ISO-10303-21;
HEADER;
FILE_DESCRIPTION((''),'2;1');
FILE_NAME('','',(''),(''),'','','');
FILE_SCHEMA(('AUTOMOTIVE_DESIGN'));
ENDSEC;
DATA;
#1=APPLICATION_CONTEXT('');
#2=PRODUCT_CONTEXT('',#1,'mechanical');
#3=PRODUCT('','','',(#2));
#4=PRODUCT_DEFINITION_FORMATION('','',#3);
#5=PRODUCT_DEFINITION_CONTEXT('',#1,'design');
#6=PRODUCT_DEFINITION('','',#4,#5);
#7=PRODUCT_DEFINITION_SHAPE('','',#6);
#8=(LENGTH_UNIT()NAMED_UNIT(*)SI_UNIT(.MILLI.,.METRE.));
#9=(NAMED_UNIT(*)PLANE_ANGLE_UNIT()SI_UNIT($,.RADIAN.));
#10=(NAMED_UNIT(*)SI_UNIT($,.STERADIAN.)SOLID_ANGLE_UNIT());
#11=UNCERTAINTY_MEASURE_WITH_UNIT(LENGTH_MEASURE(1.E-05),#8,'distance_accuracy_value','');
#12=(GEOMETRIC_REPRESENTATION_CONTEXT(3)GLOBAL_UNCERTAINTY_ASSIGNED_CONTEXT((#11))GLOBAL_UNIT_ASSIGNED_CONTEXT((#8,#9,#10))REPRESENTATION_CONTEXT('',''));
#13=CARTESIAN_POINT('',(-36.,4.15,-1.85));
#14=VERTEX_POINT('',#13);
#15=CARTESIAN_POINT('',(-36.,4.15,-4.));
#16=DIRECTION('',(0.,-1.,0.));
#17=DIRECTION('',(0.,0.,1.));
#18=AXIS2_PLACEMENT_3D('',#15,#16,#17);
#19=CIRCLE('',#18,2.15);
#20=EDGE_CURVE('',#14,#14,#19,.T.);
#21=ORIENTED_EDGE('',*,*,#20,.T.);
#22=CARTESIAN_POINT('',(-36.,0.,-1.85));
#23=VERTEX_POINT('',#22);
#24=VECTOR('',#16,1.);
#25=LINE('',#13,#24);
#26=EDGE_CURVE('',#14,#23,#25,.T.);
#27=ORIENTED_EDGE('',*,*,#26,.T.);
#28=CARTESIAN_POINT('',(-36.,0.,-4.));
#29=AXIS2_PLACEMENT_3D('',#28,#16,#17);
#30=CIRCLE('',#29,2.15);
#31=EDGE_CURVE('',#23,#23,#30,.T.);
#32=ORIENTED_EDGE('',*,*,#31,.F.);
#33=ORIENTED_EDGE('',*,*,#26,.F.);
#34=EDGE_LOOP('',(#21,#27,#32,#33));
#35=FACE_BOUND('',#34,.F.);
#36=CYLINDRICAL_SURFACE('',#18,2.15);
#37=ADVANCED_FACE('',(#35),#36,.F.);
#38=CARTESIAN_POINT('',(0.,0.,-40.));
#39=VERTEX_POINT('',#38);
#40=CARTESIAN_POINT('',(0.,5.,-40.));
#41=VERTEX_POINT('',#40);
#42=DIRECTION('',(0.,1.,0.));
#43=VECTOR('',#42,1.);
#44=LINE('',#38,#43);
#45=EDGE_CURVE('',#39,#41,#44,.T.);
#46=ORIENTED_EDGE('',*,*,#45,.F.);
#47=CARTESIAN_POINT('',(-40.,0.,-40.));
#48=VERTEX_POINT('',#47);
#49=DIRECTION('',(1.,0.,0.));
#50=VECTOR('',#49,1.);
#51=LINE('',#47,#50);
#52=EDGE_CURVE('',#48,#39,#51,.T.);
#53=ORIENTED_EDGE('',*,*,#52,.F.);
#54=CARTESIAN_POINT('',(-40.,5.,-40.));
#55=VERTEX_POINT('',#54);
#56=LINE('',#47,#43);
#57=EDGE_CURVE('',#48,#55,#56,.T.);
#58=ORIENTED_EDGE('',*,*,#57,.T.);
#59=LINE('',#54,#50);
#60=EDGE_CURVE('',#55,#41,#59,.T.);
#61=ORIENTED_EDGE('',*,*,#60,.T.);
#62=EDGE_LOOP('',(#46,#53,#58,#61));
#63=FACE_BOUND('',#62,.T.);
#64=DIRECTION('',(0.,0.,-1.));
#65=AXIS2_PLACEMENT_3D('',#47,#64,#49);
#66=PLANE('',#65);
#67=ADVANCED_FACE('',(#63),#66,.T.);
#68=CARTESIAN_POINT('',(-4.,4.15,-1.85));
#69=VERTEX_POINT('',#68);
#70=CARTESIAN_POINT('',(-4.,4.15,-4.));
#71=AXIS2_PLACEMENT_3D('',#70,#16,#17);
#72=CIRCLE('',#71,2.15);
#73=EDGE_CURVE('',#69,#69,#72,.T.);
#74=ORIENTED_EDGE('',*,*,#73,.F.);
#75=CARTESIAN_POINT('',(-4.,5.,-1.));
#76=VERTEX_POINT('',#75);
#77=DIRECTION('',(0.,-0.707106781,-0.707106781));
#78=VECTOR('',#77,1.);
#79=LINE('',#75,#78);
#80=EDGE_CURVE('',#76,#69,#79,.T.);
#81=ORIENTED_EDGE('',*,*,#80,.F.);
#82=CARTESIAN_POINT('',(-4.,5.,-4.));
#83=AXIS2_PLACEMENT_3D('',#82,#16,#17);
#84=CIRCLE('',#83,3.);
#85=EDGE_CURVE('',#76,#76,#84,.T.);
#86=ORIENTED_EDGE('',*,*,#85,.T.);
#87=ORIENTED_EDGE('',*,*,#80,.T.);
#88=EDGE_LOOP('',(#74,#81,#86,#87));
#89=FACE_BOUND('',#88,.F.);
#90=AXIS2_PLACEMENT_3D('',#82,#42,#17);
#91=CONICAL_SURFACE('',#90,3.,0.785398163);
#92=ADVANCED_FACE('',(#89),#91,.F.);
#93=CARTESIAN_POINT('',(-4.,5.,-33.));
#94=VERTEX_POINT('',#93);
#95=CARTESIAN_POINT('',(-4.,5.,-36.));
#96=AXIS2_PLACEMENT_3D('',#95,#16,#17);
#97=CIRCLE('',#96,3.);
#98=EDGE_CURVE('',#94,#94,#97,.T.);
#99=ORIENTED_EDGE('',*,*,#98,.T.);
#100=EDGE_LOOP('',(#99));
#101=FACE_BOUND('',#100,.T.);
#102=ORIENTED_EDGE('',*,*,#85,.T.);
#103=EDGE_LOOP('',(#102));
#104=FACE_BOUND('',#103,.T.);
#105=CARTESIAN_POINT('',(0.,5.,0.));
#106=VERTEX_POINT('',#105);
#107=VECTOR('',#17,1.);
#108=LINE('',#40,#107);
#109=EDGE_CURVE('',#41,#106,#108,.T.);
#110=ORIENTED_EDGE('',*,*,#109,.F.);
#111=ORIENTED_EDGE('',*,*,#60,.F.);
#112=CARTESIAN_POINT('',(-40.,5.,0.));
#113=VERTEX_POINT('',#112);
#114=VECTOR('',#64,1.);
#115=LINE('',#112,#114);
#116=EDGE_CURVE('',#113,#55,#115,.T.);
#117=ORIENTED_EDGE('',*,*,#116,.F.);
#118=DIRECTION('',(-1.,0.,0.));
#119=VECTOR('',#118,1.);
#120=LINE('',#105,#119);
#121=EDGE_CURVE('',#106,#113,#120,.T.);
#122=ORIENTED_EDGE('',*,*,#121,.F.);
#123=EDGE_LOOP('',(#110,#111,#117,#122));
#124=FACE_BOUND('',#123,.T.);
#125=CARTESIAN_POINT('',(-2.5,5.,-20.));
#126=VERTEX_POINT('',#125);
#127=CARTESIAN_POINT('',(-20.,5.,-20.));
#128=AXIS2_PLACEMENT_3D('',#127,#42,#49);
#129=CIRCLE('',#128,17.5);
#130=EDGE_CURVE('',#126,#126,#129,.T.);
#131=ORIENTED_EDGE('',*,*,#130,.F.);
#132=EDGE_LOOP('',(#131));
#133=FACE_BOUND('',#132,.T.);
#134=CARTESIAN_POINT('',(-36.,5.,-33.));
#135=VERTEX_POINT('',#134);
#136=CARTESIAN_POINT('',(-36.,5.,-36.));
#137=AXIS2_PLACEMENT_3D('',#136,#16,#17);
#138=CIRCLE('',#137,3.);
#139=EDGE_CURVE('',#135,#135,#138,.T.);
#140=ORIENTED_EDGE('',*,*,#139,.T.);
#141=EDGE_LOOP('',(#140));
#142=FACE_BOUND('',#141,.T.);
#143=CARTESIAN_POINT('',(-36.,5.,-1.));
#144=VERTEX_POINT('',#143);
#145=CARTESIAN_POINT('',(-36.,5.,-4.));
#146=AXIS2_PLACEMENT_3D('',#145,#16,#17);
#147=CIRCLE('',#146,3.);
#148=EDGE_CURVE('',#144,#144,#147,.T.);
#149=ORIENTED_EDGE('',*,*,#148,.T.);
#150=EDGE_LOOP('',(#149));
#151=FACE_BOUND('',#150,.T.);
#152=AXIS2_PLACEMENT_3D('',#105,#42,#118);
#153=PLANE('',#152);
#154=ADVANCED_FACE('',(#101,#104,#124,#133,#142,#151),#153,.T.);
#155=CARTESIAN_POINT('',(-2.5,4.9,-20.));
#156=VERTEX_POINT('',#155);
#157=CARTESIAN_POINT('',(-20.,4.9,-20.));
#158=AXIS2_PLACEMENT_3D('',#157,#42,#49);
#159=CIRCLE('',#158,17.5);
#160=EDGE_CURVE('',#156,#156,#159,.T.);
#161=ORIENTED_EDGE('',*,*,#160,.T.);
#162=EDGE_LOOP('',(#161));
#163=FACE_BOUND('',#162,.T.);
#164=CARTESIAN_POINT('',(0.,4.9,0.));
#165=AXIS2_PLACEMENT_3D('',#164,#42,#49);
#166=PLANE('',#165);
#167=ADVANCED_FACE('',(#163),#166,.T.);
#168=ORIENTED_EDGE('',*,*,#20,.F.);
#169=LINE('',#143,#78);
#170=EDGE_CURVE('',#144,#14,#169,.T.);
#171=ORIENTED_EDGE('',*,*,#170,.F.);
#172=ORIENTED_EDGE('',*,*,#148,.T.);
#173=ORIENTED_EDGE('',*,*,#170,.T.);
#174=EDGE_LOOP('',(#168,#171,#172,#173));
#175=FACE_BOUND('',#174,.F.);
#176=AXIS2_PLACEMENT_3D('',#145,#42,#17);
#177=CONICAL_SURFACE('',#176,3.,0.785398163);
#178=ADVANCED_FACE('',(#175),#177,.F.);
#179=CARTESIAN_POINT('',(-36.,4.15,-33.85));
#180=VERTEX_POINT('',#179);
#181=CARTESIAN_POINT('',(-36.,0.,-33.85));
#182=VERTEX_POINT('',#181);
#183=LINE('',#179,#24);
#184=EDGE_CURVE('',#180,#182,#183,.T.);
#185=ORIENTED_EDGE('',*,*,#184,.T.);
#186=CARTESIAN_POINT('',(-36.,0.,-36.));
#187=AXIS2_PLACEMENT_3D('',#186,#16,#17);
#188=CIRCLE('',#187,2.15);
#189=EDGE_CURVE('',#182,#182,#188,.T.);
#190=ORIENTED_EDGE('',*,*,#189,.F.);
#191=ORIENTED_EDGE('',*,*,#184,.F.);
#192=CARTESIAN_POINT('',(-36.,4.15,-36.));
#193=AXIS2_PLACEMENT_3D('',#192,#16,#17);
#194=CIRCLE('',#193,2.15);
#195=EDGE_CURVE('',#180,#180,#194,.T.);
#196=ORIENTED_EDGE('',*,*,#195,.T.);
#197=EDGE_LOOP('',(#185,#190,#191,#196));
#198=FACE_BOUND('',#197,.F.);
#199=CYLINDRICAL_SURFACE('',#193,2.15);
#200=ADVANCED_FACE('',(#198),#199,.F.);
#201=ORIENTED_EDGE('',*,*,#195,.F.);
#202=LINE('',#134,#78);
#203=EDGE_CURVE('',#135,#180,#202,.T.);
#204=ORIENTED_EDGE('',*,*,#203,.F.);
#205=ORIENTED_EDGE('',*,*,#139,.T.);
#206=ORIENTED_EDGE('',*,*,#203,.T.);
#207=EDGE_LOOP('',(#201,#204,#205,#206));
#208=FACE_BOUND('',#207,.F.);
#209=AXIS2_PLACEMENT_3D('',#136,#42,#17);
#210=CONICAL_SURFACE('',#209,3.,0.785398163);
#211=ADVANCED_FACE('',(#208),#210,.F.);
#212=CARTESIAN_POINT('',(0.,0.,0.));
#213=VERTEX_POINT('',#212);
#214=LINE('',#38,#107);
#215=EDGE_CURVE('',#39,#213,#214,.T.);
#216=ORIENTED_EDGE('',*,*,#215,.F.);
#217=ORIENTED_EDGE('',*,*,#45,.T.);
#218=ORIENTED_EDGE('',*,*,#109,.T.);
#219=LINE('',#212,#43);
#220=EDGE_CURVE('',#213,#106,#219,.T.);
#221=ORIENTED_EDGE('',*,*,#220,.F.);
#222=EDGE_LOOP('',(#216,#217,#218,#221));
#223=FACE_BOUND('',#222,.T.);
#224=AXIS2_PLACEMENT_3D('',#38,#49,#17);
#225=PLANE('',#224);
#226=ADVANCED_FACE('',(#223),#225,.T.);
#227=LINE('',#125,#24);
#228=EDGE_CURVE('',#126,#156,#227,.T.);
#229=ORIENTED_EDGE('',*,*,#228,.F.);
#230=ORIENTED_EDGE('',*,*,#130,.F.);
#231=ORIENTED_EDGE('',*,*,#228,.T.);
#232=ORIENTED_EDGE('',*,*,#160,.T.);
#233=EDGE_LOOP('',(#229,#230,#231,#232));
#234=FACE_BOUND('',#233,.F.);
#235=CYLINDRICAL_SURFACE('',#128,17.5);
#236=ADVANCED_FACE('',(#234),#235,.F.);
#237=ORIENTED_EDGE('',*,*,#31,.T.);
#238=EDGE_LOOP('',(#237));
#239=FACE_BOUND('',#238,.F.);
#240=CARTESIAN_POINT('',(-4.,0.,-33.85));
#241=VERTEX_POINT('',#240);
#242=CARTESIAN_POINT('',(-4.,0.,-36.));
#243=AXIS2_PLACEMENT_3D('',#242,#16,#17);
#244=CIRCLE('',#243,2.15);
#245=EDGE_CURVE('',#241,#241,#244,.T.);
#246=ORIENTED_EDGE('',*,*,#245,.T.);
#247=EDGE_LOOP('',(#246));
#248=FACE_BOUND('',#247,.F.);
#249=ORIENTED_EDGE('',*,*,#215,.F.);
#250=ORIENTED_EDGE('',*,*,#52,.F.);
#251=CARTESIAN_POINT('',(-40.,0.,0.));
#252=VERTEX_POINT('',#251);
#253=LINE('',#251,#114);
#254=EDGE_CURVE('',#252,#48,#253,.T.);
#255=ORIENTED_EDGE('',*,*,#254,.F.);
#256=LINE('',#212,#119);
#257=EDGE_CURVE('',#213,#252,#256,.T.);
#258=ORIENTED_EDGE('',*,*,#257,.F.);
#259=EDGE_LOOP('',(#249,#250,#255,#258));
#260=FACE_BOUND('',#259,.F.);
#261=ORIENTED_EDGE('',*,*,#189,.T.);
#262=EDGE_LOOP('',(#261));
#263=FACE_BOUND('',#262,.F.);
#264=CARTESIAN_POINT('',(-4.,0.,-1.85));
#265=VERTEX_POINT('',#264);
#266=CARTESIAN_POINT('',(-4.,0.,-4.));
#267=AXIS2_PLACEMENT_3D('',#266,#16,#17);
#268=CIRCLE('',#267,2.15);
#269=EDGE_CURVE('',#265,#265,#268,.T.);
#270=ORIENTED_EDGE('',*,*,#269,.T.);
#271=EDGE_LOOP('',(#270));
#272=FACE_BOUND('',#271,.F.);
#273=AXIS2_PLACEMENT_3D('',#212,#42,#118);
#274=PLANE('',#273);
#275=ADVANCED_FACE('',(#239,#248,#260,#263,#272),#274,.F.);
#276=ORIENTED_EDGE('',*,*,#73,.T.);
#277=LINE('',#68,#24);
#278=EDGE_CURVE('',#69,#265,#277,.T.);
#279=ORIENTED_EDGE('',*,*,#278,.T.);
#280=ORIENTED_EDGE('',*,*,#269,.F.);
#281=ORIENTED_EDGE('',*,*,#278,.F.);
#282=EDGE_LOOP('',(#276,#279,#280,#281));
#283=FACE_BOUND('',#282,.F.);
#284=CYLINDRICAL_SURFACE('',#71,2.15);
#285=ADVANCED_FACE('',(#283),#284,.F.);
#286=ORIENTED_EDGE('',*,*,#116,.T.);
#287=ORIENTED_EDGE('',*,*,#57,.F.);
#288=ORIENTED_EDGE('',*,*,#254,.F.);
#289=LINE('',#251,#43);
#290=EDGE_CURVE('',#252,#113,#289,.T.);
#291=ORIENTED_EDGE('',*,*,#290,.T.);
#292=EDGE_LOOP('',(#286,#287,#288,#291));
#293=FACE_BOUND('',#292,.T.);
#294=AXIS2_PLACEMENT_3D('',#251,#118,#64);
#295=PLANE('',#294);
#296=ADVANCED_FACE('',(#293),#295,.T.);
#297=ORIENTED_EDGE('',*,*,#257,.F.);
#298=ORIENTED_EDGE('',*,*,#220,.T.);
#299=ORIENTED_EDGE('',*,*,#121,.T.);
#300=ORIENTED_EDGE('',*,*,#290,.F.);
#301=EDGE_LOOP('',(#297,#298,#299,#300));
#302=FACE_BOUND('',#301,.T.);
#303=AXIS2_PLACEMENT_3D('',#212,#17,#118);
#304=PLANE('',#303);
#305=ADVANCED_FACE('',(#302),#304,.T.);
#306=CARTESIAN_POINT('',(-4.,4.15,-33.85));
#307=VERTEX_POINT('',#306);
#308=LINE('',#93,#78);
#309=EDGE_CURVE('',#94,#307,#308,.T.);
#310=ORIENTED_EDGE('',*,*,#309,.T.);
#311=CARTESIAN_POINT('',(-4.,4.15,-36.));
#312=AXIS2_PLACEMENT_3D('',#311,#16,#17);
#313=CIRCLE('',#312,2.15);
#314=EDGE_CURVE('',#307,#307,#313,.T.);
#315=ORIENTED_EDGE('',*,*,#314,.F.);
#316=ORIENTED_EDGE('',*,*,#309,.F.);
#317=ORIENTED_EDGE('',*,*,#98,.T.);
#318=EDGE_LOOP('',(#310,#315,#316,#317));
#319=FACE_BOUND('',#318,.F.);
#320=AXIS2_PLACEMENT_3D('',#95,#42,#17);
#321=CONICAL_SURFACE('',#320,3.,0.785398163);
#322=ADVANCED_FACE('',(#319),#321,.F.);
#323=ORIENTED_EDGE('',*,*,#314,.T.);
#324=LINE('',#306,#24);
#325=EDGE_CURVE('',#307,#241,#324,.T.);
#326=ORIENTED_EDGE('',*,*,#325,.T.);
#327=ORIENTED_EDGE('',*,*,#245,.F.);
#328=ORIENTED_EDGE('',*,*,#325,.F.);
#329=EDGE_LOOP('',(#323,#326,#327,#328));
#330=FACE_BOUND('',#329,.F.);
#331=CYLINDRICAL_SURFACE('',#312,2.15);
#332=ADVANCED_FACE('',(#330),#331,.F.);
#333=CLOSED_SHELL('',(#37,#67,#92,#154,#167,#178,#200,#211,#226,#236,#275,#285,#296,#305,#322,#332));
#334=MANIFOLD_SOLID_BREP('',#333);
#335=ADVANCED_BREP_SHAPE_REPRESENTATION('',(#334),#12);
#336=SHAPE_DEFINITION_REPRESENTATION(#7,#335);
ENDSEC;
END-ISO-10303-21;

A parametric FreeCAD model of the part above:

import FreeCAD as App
import Part
import Sketcher
from FreeCAD import Vector
Q = App.Units.Quantity

doc = App.newDocument("Part")
body = doc.addObject("PartDesign::Body", "Body")

sketch1 = body.newObject("Sketcher::SketchObject", "Sketch")
sketch1.AttachmentSupport = (doc.getObject("XZ_Plane"), [""])
sketch1.MapMode = "FlatFace"
sketch1.addGeometry([
    Part.LineSegment(Vector(-40, 0, 0), Vector(0, 0, 0)),
    Part.LineSegment(Vector(0, 0, 0), Vector(0, -40, 0)),
    Part.LineSegment(Vector(0, -40, 0), Vector(-40, -40, 0)),
    Part.LineSegment(Vector(-40, -40, 0), Vector(-40, 0, 0)),
], False)
sketch1.addConstraint([
    Sketcher.Constraint("Coincident", 0, 2, 1, 1),
    Sketcher.Constraint("Coincident", 1, 2, 2, 1),
    Sketcher.Constraint("Coincident", 2, 2, 3, 1),
    Sketcher.Constraint("Coincident", 3, 2, 0, 1),
    Sketcher.Constraint("Horizontal", 0),
    Sketcher.Constraint("Vertical", 1),
    Sketcher.Constraint("Horizontal", 2),
    Sketcher.Constraint("Vertical", 3),
    Sketcher.Constraint("Coincident", 0, 2, -1, 1),
    Sketcher.Constraint("Equal", 2, 1),
    Sketcher.Constraint("DistanceX", 0, 1, 0, 2, Q("40 mm")),
])
pad1 = body.newObject("PartDesign::Pad", "Pad")
pad1.Profile = sketch1
pad1.Length = 5
pad1.Reversed = True

sketch2 = body.newObject("Sketcher::SketchObject", "Sketch001")
sketch2.AttachmentSupport = (doc.getObject("XZ_Plane"), [""])
sketch2.MapMode = "FlatFace"
sketch2.AttachmentOffset = App.Placement(Vector(0, 0, -5), App.Rotation())
sketch2.addGeometry([
    Part.Circle(Vector(-4, -4, 0), Vector(0, 0, 1), 2.1),
    Part.Circle(Vector(-4, -36, 0), Vector(0, 0, 1), 2.1),
    Part.Circle(Vector(-36, -36, 0), Vector(0, 0, 1), 2.1),
    Part.Circle(Vector(-36, -4, 0), Vector(0, 0, 1), 2.1),
], False)
sketch2.addConstraint([
    Sketcher.Constraint("Equal", 0, 1),
    Sketcher.Constraint("Equal", 1, 2),
    Sketcher.Constraint("Equal", 2, 3),
    Sketcher.Constraint("Horizontal", 1, 3, 2, 3),
    Sketcher.Constraint("Horizontal", 0, 3, 3, 3),
    Sketcher.Constraint("Vertical", 0, 3, 1, 3),
    Sketcher.Constraint("Vertical", 2, 3, 3, 3),
    Sketcher.Constraint("Diameter", 0, Q("4.3 mm")),
    Sketcher.Constraint("DistanceX", 0, 3, -1, 1, Q("4 mm")),
    Sketcher.Constraint("DistanceY", 0, 3, -1, 1, Q("4 mm")),
    Sketcher.Constraint("DistanceY", 1, 3, -1, 1, Q("36 mm")),
    Sketcher.Constraint("DistanceX", 2, 3, -1, 1, Q("36 mm")),
])
doc.recompute()
hole = body.newObject("PartDesign::Hole", "Hole")
hole.Profile = sketch2
hole.ThreadType = "None"
hole.Diameter = 4.3
hole.DepthType = "ThroughAll"
hole.HoleCutType = "Countersink"
hole.HoleCutDiameter = 6
hole.HoleCutCountersinkAngle = 90
hole.Reversed = True

sketch3 = body.newObject("Sketcher::SketchObject", "Sketch002")
sketch3.AttachmentSupport = (doc.getObject("XZ_Plane"), [""])
sketch3.MapMode = "FlatFace"
sketch3.AttachmentOffset = App.Placement(Vector(0, 0, -5), App.Rotation())
sketch3.addGeometry(Part.Circle(Vector(-20, -20, 0), Vector(0, 0, 1), 18), False)
sketch3.addConstraint([
    Sketcher.Constraint("Diameter", 0, Q("35 mm")),
    Sketcher.Constraint("DistanceX", 0, 3, -1, 1, Q("20 mm")),
    Sketcher.Constraint("DistanceY", 0, 3, -1, 1, Q("20 mm")),
])
pocket1 = body.newObject("PartDesign::Pocket", "Pocket")
pocket1.Profile = sketch3
pocket1.Length = 0.1
pocket1.Reversed = True

doc.recompute()
